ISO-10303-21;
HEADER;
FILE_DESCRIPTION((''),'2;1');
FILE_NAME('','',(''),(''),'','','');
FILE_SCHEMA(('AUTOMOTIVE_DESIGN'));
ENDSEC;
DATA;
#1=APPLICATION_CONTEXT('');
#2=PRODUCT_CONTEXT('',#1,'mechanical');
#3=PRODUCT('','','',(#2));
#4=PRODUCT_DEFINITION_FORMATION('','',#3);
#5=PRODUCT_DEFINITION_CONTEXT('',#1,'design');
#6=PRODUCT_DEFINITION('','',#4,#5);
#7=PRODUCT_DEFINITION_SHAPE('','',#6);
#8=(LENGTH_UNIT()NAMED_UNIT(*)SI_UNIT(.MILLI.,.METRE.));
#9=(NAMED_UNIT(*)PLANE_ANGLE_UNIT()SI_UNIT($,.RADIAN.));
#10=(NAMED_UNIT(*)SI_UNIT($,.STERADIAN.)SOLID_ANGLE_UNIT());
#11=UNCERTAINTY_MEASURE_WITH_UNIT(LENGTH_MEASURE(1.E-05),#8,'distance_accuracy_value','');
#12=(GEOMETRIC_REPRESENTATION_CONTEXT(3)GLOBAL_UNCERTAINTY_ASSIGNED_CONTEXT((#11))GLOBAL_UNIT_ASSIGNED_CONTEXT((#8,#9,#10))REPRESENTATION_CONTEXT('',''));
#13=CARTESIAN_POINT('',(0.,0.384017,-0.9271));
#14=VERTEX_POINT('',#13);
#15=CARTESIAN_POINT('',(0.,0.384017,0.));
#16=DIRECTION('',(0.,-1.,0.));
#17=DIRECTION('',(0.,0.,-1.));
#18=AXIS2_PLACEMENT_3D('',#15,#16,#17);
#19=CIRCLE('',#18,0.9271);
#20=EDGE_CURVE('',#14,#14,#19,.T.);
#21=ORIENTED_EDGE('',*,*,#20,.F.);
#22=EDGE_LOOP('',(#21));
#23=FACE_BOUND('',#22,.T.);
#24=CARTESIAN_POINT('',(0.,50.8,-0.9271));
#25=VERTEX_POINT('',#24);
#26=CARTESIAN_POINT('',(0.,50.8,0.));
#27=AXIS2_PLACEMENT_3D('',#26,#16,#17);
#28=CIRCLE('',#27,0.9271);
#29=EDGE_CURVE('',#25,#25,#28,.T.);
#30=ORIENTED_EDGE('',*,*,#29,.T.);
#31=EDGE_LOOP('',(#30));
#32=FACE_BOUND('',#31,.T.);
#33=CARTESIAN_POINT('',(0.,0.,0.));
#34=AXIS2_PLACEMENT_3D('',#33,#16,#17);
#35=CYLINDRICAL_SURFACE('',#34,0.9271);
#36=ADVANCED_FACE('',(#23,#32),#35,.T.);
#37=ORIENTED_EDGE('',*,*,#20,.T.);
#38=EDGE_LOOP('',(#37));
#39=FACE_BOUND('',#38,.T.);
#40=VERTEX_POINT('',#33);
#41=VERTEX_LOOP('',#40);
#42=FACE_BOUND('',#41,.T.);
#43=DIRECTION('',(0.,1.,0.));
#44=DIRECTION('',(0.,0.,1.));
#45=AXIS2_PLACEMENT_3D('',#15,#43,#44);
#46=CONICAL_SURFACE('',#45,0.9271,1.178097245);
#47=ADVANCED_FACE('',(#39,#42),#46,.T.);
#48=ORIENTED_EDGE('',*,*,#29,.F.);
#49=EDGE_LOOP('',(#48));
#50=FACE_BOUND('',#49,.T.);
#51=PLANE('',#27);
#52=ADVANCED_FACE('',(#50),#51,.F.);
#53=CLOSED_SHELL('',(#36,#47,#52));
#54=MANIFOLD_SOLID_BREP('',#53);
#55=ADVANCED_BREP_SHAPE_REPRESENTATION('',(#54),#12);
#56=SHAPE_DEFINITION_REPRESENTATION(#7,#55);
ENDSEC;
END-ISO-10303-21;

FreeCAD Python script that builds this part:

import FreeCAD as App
import Part
import Sketcher
Q = App.Units.Quantity

doc = App.newDocument("Part")
params = doc.addObject("Spreadsheet::Sheet", "Params")
for row, (alias, value) in enumerate([
    ("sketch1_height", "2 in"),
    ("revolution_angle", "360 deg"),
], start=1):
    params.set(f"A{row}", alias)
    params.set(f"B{row}", "=" + value)
    params.setAlias(f"B{row}", alias)

body = doc.addObject("PartDesign::Body", "Body")

# Sketch on XY plane
sketch1 = doc.addObject("Sketcher::SketchObject", "Sketch")
body.addObject(sketch1)
sketch1.AttachmentSupport = (doc.XY_Plane, [""])
sketch1.MapMode = "FlatFace"
sketch1.addGeometry(Part.LineSegment(App.Vector(0, 50.8, 0), App.Vector(-0.9, 50.8, 0)), False)
sketch1.addGeometry(Part.LineSegment(App.Vector(-0.9, 50.8, 0), App.Vector(-0.9, 0.4, 0)), False)
sketch1.addGeometry(Part.LineSegment(App.Vector(-0.9, 0.4, 0), App.Vector(0, 0, 0)), False)
sketch1.addGeometry(Part.LineSegment(App.Vector(0, 0, 0), App.Vector(0, 50.8, 0)), False)
sketch1.addConstraint(Sketcher.Constraint("Coincident", 0, 2, 1, 1))
sketch1.addConstraint(Sketcher.Constraint("Coincident", 1, 2, 2, 1))
sketch1.addConstraint(Sketcher.Constraint("Coincident", 2, 2, 3, 1))
sketch1.addConstraint(Sketcher.Constraint("Coincident", 3, 2, 0, 1))
sketch1.addConstraint(Sketcher.Constraint("Horizontal", 0))
sketch1.addConstraint(Sketcher.Constraint("Vertical", 1))
sketch1.addConstraint(Sketcher.Constraint("Vertical", 3))
sketch1.addConstraint(Sketcher.Constraint("Coincident", 2, 2, -1, 1))
sketch1.addConstraint(Sketcher.Constraint("DistanceY", 3, 1, 3, 2, Q("2 in")))
sketch1.addConstraint(Sketcher.Constraint("Angle", 2, Q("-22.5 deg")))
sketch1.addConstraint(Sketcher.Constraint("DistanceX", 0, 2, 0, 1, Q("0.0365 in")))
sketch1.setExpression("Constraints[8]", "Params.sketch1_height")
revolution = doc.addObject("PartDesign::Revolution", "Revolution")
body.addObject(revolution)
revolution.Profile = sketch1
revolution.ReferenceAxis = (sketch1, ["V_Axis"])
revolution.setExpression("Angle", "Params.revolution_angle")

doc.recompute()
